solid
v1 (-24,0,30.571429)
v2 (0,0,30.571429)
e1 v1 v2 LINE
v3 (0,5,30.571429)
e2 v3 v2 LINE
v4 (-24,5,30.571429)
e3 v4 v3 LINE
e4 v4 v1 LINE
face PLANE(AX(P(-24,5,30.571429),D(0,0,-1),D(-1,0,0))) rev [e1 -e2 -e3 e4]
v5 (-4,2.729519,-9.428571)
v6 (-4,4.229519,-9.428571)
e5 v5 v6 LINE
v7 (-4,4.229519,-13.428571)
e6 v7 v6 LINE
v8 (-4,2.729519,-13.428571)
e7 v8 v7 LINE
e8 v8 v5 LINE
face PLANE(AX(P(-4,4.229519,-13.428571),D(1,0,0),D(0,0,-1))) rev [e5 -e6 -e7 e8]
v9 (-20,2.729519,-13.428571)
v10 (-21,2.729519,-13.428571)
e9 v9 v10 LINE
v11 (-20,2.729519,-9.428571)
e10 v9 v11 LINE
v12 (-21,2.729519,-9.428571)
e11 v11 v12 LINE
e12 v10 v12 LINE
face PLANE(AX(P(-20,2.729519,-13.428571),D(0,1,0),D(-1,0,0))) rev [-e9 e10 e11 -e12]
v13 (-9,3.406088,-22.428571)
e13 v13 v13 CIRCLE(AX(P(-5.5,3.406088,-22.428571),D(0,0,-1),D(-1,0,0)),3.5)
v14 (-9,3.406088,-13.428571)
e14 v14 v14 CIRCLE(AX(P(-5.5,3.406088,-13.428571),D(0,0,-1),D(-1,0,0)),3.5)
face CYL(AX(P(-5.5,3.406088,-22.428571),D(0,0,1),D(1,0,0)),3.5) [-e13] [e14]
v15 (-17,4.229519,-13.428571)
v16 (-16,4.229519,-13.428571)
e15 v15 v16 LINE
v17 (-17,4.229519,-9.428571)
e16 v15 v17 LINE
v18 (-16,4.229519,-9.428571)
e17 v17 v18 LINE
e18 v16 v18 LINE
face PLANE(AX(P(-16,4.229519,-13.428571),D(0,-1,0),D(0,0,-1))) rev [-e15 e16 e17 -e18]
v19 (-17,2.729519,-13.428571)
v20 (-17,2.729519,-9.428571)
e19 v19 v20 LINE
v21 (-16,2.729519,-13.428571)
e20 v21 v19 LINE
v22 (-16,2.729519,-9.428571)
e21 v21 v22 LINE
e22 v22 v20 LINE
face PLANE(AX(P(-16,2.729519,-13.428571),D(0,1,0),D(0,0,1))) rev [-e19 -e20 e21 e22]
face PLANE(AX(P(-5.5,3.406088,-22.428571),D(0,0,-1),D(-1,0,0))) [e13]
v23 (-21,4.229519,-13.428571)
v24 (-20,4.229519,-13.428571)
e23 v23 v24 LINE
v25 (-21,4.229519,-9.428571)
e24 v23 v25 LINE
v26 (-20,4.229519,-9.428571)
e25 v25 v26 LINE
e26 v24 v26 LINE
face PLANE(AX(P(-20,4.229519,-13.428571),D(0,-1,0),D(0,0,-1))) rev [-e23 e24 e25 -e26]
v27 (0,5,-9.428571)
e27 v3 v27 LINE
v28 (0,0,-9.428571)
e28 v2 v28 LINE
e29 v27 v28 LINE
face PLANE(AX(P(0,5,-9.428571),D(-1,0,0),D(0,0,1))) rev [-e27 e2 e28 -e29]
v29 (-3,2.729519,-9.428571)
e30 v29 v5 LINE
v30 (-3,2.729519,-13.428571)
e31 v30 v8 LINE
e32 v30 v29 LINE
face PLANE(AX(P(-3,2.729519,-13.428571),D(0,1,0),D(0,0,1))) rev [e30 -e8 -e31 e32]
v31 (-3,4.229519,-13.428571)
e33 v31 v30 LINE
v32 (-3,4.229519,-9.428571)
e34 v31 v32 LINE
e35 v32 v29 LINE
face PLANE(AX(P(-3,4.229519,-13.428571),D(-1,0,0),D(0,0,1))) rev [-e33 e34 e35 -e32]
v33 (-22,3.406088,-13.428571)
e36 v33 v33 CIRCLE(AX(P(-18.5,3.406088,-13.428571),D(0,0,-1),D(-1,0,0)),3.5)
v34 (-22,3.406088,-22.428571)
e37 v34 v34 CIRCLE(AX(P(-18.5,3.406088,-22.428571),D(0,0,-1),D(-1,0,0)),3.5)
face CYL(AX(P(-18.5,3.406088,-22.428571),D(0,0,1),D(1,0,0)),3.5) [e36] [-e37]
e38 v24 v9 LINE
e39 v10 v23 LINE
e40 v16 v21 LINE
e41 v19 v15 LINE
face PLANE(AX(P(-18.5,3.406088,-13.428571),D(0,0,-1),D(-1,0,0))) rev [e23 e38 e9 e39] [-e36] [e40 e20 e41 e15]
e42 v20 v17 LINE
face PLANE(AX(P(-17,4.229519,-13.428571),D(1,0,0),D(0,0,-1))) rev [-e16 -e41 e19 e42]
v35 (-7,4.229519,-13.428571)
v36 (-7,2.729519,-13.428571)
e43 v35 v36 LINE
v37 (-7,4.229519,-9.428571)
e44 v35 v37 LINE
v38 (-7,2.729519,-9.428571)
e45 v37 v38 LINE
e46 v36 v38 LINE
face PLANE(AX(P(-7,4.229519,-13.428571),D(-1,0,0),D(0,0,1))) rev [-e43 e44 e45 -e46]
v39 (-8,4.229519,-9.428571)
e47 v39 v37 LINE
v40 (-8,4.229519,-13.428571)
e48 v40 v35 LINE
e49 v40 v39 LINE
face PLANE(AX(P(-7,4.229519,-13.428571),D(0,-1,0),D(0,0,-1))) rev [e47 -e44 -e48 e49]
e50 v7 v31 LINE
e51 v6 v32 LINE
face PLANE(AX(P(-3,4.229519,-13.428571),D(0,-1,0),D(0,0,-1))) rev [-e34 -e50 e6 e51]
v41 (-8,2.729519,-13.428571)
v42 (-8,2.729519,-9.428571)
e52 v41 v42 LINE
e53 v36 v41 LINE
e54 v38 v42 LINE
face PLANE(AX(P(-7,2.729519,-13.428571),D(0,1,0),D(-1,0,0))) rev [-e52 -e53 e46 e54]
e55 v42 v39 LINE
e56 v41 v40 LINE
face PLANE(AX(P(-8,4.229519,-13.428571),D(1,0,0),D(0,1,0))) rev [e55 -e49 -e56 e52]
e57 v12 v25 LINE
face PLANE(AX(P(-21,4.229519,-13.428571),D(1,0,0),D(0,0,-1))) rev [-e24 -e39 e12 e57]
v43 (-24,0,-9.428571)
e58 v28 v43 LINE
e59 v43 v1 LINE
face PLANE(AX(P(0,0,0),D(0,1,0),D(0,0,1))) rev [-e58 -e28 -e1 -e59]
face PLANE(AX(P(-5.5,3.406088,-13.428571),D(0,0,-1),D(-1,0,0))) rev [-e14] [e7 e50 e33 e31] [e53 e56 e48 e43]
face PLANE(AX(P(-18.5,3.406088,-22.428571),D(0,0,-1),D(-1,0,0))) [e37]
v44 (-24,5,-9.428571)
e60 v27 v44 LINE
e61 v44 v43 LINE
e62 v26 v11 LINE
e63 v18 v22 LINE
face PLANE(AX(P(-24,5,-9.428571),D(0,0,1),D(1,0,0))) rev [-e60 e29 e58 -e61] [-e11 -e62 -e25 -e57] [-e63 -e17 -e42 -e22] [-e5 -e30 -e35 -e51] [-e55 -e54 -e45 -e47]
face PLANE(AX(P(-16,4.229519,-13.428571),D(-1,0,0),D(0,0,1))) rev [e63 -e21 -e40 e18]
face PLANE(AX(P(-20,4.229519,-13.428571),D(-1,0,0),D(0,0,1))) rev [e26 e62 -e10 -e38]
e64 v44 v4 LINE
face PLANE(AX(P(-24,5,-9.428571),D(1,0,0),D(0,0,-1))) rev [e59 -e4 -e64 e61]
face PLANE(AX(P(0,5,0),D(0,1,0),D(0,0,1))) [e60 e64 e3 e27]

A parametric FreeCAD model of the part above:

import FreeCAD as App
import Part
import Sketcher
from FreeCAD import Vector
Q = App.Units.Quantity


def add_polygon(sketch, points):
    """Adds a closed chain of lines whose ends are joined by coincident constraints."""
    first, n = sketch.GeometryCount, len(points)
    for a, b in zip(points, points[1:] + points[:1]):
        sketch.addGeometry(Part.LineSegment(App.Vector(*a, 0), App.Vector(*b, 0)), False)
    for i in range(n):
        sketch.addConstraint(Sketcher.Constraint("Coincident", first + i, 2, first + (i + 1) % n, 1))

doc = App.newDocument("Part")
params = doc.addObject("Spreadsheet::Sheet", "Params")
for row, (alias, value) in enumerate([
    ("sketch1_width", "24 mm"),
    ("sketch1_height", "40 mm"),
    ("pad1_length", "5 mm"),
    ("sketch2_width", "1 mm"),
    ("sketch2_height", "1.5 mm"),
    ("pad2_length", "4 mm"),
    ("sketch3_diameter", "7 mm"),
    ("pad3_length", "9 mm"),
], start=1):
    params.set(f"A{row}", alias)
    params.set(f"B{row}", "=" + value)
    params.setAlias(f"B{row}", alias)

body = doc.addObject("PartDesign::Body", "Body")

sketch1 = body.newObject("Sketcher::SketchObject", "Sketch")
sketch1.AttachmentSupport = (doc.getObject("XZ_Plane"), [""])
sketch1.MapMode = "FlatFace"
add_polygon(sketch1, [(-24, -9.428571), (-24, 30.571429), (0, 30.571429), (0, -9.428571)])
sketch1.addConstraint(Sketcher.Constraint("Vertical", 0))
sketch1.addConstraint(Sketcher.Constraint("Horizontal", 1))
sketch1.addConstraint(Sketcher.Constraint("Vertical", 2))
sketch1.addConstraint(Sketcher.Constraint("Horizontal", 3))
sketch1.addConstraint(Sketcher.Constraint("PointOnObject", 1, 2, -2))
sketch1.addConstraint(Sketcher.Constraint("DistanceX", 1, 1, 1, 2, Q("24 mm")))
sketch1.addConstraint(Sketcher.Constraint("DistanceY", 0, 1, 0, 2, Q("40 mm")))
sketch1.addConstraint(Sketcher.Constraint("DistanceY", -1, 1, 0, 2, Q("30.571429 mm")))
sketch1.setExpression("Constraints[9]", "Params.sketch1_width")
sketch1.setExpression("Constraints[10]", "Params.sketch1_height")
pad1 = body.newObject("PartDesign::Pad", "Pad")
pad1.Profile = sketch1
pad1.setExpression("Length", "Params.pad1_length")
pad1.Reversed = True

sketch2 = body.newObject("Sketcher::SketchObject", "Sketch001")
sketch2.AttachmentSupport = (doc.getObject("XY_Plane"), [""])
sketch2.MapMode = "FlatFace"
sketch2.AttachmentOffset = App.Placement(Vector(0, 0, -9.428571), App.Rotation())
add_polygon(sketch2, [(-3, 4.229519), (-3, 2.729519), (-4, 2.729519), (-4, 4.229519)])
add_polygon(sketch2, [(-7, 4.229519), (-7, 2.729519), (-8, 2.729519), (-8, 4.229519)])
add_polygon(sketch2, [(-16, 4.229519), (-16, 2.729519), (-17, 2.729519), (-17, 4.229519)])
add_polygon(sketch2, [(-20, 4.229519), (-20, 2.729519), (-21, 2.729519), (-21, 4.229519)])
sketch2.addConstraint(Sketcher.Constraint("Vertical", 0))
sketch2.addConstraint(Sketcher.Constraint("Horizontal", 1))
sketch2.addConstraint(Sketcher.Constraint("Vertical", 2))
sketch2.addConstraint(Sketcher.Constraint("Horizontal", 3))
sketch2.addConstraint(Sketcher.Constraint("Vertical", 4))
sketch2.addConstraint(Sketcher.Constraint("Horizontal", 5))
sketch2.addConstraint(Sketcher.Constraint("Vertical", 6))
sketch2.addConstraint(Sketcher.Constraint("Horizontal", 7))
sketch2.addConstraint(Sketcher.Constraint("Vertical", 8))
sketch2.addConstraint(Sketcher.Constraint("Horizontal", 9))
sketch2.addConstraint(Sketcher.Constraint("Vertical", 10))
sketch2.addConstraint(Sketcher.Constraint("Horizontal", 11))
sketch2.addConstraint(Sketcher.Constraint("Vertical", 12))
sketch2.addConstraint(Sketcher.Constraint("Horizontal", 13))
sketch2.addConstraint(Sketcher.Constraint("Vertical", 14))
sketch2.addConstraint(Sketcher.Constraint("Horizontal", 15))
sketch2.addConstraint(Sketcher.Constraint("Horizontal", 1, 2, 4, 2))
sketch2.addConstraint(Sketcher.Constraint("Horizontal", 3, 2, 6, 2))
sketch2.addConstraint(Sketcher.Constraint("Horizontal", 5, 2, 8, 2))
sketch2.addConstraint(Sketcher.Constraint("Horizontal", 7, 2, 10, 2))
sketch2.addConstraint(Sketcher.Constraint("Horizontal", 9, 2, 12, 2))
sketch2.addConstraint(Sketcher.Constraint("Horizontal", 11, 2, 14, 2))
sketch2.addConstraint(Sketcher.Constraint("Equal", 3, 5))
sketch2.addConstraint(Sketcher.Constraint("Equal", 7, 9))
sketch2.addConstraint(Sketcher.Constraint("Equal", 11, 13))
sketch2.addConstraint(Sketcher.Constraint("DistanceX", 1, 2, 1, 1, Q("1 mm")))
sketch2.addConstraint(Sketcher.Constraint("DistanceY", 0, 2, 0, 1, Q("1.5 mm")))
sketch2.addConstraint(Sketcher.Constraint("DistanceX", 0, 2, -1, 1, Q("3 mm")))
sketch2.addConstraint(Sketcher.Constraint("DistanceX", 4, 2, -1, 1, Q("7 mm")))
sketch2.addConstraint(Sketcher.Constraint("DistanceX", 8, 2, -1, 1, Q("16 mm")))
sketch2.addConstraint(Sketcher.Constraint("DistanceX", 12, 2, -1, 1, Q("20 mm")))
sketch2.addConstraint(Sketcher.Constraint("DistanceY", -1, 1, 0, 2, Q("2.729519 mm")))
sketch2.setExpression("Constraints[41]", "Params.sketch2_width")
sketch2.setExpression("Constraints[42]", "Params.sketch2_height")
pad2 = body.newObject("PartDesign::Pad", "Pad001")
pad2.Profile = sketch2
pad2.setExpression("Length", "Params.pad2_length")
pad2.Reversed = True

sketch3 = body.newObject("Sketcher::SketchObject", "Sketch002")
sketch3.AttachmentSupport = (doc.getObject("XY_Plane"), [""])
sketch3.MapMode = "FlatFace"
sketch3.AttachmentOffset = App.Placement(Vector(0, 0, -13.428571), App.Rotation())
sketch3.addGeometry(Part.Circle(Vector(-5.5, 3.406088, 0), Vector(0, 0, 1), 3.5), False)
sketch3.addGeometry(Part.Circle(Vector(-18.5, 3.406088, 0), Vector(0, 0, 1), 3.5), False)
sketch3.addConstraint(Sketcher.Constraint("Equal", 0, 1))
sketch3.addConstraint(Sketcher.Constraint("Horizontal", 0, 3, 1, 3))
sketch3.addConstraint(Sketcher.Constraint("Diameter", 0, Q("7 mm")))
sketch3.addConstraint(Sketcher.Constraint("DistanceX", 1, 3, 0, 3, Q("13 mm")))
sketch3.addConstraint(Sketcher.Constraint("DistanceX", 0, 3, -1, 1, Q("5.5 mm")))
sketch3.addConstraint(Sketcher.Constraint("DistanceY", -1, 1, 0, 3, Q("3.406088 mm")))
sketch3.setExpression("Constraints[2]", "Params.sketch3_diameter")
pad3 = body.newObject("PartDesign::Pad", "Pad002")
pad3.Profile = sketch3
pad3.setExpression("Length", "Params.pad3_length")
pad3.Reversed = True

doc.recompute()
